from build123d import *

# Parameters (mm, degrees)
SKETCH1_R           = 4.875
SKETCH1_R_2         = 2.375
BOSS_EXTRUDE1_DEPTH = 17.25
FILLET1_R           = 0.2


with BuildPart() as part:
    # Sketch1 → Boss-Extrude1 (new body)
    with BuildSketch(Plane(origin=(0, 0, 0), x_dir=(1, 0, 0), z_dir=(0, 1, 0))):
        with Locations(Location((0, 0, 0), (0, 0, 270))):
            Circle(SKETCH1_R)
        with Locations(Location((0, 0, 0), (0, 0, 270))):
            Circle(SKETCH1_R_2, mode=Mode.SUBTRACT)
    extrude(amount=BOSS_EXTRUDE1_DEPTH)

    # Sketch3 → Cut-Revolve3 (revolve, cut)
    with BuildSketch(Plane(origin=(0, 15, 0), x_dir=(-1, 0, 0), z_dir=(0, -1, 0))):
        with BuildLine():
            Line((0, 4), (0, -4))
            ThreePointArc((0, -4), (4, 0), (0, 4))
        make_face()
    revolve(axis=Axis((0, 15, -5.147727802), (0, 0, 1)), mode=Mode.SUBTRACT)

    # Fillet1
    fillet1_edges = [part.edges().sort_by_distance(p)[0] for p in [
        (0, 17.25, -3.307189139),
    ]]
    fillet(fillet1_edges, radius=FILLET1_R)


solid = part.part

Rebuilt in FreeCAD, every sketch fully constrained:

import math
import FreeCAD as App
import Part
import Sketcher
Q = App.Units.Quantity


def edges_at(feature, points):
    """Names of the edges that pass closest to the given points."""
    edges = feature.Shape.Edges
    near = lambda p: min(range(len(edges)), key=lambda i: edges[i].distToShape(Part.Vertex(*p))[0])
    return sorted({f"Edge{near(p) + 1}" for p in points})

doc = App.newDocument("Part")
params = doc.addObject("Spreadsheet::Sheet", "Params")
for row, (alias, value) in enumerate([
    ("sketch1_diameter", "9.75 mm"),
    ("sketch1_diameter2", "4.75 mm"),
    ("pad1_length", "17.25 mm"),
    ("sketch2_radius", "4 mm"),
    ("groove_angle", "360 deg"),
    ("fillet_radius", "0.2 mm"),
], start=1):
    params.set(f"A{row}", alias)
    params.set(f"B{row}", "=" + value)
    params.setAlias(f"B{row}", alias)

body = doc.addObject("PartDesign::Body", "Body")

# Sketch on XZ plane
sketch1 = body.newObject("Sketcher::SketchObject", "Sketch")
sketch1.AttachmentSupport = (doc.getObject("XZ_Plane"), [""])
sketch1.MapMode = "FlatFace"
sketch1.addGeometry([
    Part.Circle(App.Vector(0, 0, 0), App.Vector(0, 0, 1), 4.875),
    Part.Circle(App.Vector(0, 0, 0), App.Vector(0, 0, 1), 2.375),
], False)
sketch1.addConstraint([
    Sketcher.Constraint("Coincident", 0, 3, -1, 1),
    Sketcher.Constraint("Coincident", 1, 3, -1, 1),
    Sketcher.Constraint("Diameter", 0, Q("9.75 mm")),
    Sketcher.Constraint("Diameter", 1, Q("4.75 mm")),
])
sketch1.setExpression("Constraints[2]", "Params.sketch1_diameter")
sketch1.setExpression("Constraints[3]", "Params.sketch1_diameter2")
pad1 = body.newObject("PartDesign::Pad", "Pad")
pad1.Profile = sketch1
pad1.setExpression("Length", "Params.pad1_length")
pad1.Reversed = True

# Sketch on XZ plane
sketch2 = body.newObject("Sketcher::SketchObject", "Sketch001")
sketch2.AttachmentSupport = (doc.getObject("XZ_Plane"), [""])
sketch2.MapMode = "FlatFace"
sketch2.AttachmentOffset = App.Placement(App.Vector(0, 0, -15), App.Rotation())
sketch2.addGeometry([
    Part.LineSegment(App.Vector(0, -4, 0), App.Vector(0, 4, 0)),
    Part.ArcOfCircle(Part.Circle(App.Vector(0, 0, 0), App.Vector(0, 0, 1), 4), math.radians(90), math.radians(270)),
], False)
sketch2.addConstraint([
    Sketcher.Constraint("Coincident", 0, 1, 1, 2),
    Sketcher.Constraint("Coincident", 1, 1, 0, 2),
    Sketcher.Constraint("Vertical", 0),
    Sketcher.Constraint("Coincident", 1, 3, -1, 1),
    Sketcher.Constraint("PointOnObject", 0, 1, -2),
    Sketcher.Constraint("Radius", 1, Q("4 mm")),
])
sketch2.setExpression("Constraints[5]", "Params.sketch2_radius")
groove = body.newObject("PartDesign::Groove", "Groove")
groove.Profile = sketch2
groove.ReferenceAxis = (sketch2, ["V_Axis"])
groove.setExpression("Angle", "Params.groove_angle")
doc.recompute()

fillet = body.newObject("PartDesign::Fillet", "Fillet")
fillet.Base = (groove, edges_at(groove, [(0, 17.25, -3.307)]))
fillet.setExpression("Radius", "Params.fillet_radius")

doc.recompute()
